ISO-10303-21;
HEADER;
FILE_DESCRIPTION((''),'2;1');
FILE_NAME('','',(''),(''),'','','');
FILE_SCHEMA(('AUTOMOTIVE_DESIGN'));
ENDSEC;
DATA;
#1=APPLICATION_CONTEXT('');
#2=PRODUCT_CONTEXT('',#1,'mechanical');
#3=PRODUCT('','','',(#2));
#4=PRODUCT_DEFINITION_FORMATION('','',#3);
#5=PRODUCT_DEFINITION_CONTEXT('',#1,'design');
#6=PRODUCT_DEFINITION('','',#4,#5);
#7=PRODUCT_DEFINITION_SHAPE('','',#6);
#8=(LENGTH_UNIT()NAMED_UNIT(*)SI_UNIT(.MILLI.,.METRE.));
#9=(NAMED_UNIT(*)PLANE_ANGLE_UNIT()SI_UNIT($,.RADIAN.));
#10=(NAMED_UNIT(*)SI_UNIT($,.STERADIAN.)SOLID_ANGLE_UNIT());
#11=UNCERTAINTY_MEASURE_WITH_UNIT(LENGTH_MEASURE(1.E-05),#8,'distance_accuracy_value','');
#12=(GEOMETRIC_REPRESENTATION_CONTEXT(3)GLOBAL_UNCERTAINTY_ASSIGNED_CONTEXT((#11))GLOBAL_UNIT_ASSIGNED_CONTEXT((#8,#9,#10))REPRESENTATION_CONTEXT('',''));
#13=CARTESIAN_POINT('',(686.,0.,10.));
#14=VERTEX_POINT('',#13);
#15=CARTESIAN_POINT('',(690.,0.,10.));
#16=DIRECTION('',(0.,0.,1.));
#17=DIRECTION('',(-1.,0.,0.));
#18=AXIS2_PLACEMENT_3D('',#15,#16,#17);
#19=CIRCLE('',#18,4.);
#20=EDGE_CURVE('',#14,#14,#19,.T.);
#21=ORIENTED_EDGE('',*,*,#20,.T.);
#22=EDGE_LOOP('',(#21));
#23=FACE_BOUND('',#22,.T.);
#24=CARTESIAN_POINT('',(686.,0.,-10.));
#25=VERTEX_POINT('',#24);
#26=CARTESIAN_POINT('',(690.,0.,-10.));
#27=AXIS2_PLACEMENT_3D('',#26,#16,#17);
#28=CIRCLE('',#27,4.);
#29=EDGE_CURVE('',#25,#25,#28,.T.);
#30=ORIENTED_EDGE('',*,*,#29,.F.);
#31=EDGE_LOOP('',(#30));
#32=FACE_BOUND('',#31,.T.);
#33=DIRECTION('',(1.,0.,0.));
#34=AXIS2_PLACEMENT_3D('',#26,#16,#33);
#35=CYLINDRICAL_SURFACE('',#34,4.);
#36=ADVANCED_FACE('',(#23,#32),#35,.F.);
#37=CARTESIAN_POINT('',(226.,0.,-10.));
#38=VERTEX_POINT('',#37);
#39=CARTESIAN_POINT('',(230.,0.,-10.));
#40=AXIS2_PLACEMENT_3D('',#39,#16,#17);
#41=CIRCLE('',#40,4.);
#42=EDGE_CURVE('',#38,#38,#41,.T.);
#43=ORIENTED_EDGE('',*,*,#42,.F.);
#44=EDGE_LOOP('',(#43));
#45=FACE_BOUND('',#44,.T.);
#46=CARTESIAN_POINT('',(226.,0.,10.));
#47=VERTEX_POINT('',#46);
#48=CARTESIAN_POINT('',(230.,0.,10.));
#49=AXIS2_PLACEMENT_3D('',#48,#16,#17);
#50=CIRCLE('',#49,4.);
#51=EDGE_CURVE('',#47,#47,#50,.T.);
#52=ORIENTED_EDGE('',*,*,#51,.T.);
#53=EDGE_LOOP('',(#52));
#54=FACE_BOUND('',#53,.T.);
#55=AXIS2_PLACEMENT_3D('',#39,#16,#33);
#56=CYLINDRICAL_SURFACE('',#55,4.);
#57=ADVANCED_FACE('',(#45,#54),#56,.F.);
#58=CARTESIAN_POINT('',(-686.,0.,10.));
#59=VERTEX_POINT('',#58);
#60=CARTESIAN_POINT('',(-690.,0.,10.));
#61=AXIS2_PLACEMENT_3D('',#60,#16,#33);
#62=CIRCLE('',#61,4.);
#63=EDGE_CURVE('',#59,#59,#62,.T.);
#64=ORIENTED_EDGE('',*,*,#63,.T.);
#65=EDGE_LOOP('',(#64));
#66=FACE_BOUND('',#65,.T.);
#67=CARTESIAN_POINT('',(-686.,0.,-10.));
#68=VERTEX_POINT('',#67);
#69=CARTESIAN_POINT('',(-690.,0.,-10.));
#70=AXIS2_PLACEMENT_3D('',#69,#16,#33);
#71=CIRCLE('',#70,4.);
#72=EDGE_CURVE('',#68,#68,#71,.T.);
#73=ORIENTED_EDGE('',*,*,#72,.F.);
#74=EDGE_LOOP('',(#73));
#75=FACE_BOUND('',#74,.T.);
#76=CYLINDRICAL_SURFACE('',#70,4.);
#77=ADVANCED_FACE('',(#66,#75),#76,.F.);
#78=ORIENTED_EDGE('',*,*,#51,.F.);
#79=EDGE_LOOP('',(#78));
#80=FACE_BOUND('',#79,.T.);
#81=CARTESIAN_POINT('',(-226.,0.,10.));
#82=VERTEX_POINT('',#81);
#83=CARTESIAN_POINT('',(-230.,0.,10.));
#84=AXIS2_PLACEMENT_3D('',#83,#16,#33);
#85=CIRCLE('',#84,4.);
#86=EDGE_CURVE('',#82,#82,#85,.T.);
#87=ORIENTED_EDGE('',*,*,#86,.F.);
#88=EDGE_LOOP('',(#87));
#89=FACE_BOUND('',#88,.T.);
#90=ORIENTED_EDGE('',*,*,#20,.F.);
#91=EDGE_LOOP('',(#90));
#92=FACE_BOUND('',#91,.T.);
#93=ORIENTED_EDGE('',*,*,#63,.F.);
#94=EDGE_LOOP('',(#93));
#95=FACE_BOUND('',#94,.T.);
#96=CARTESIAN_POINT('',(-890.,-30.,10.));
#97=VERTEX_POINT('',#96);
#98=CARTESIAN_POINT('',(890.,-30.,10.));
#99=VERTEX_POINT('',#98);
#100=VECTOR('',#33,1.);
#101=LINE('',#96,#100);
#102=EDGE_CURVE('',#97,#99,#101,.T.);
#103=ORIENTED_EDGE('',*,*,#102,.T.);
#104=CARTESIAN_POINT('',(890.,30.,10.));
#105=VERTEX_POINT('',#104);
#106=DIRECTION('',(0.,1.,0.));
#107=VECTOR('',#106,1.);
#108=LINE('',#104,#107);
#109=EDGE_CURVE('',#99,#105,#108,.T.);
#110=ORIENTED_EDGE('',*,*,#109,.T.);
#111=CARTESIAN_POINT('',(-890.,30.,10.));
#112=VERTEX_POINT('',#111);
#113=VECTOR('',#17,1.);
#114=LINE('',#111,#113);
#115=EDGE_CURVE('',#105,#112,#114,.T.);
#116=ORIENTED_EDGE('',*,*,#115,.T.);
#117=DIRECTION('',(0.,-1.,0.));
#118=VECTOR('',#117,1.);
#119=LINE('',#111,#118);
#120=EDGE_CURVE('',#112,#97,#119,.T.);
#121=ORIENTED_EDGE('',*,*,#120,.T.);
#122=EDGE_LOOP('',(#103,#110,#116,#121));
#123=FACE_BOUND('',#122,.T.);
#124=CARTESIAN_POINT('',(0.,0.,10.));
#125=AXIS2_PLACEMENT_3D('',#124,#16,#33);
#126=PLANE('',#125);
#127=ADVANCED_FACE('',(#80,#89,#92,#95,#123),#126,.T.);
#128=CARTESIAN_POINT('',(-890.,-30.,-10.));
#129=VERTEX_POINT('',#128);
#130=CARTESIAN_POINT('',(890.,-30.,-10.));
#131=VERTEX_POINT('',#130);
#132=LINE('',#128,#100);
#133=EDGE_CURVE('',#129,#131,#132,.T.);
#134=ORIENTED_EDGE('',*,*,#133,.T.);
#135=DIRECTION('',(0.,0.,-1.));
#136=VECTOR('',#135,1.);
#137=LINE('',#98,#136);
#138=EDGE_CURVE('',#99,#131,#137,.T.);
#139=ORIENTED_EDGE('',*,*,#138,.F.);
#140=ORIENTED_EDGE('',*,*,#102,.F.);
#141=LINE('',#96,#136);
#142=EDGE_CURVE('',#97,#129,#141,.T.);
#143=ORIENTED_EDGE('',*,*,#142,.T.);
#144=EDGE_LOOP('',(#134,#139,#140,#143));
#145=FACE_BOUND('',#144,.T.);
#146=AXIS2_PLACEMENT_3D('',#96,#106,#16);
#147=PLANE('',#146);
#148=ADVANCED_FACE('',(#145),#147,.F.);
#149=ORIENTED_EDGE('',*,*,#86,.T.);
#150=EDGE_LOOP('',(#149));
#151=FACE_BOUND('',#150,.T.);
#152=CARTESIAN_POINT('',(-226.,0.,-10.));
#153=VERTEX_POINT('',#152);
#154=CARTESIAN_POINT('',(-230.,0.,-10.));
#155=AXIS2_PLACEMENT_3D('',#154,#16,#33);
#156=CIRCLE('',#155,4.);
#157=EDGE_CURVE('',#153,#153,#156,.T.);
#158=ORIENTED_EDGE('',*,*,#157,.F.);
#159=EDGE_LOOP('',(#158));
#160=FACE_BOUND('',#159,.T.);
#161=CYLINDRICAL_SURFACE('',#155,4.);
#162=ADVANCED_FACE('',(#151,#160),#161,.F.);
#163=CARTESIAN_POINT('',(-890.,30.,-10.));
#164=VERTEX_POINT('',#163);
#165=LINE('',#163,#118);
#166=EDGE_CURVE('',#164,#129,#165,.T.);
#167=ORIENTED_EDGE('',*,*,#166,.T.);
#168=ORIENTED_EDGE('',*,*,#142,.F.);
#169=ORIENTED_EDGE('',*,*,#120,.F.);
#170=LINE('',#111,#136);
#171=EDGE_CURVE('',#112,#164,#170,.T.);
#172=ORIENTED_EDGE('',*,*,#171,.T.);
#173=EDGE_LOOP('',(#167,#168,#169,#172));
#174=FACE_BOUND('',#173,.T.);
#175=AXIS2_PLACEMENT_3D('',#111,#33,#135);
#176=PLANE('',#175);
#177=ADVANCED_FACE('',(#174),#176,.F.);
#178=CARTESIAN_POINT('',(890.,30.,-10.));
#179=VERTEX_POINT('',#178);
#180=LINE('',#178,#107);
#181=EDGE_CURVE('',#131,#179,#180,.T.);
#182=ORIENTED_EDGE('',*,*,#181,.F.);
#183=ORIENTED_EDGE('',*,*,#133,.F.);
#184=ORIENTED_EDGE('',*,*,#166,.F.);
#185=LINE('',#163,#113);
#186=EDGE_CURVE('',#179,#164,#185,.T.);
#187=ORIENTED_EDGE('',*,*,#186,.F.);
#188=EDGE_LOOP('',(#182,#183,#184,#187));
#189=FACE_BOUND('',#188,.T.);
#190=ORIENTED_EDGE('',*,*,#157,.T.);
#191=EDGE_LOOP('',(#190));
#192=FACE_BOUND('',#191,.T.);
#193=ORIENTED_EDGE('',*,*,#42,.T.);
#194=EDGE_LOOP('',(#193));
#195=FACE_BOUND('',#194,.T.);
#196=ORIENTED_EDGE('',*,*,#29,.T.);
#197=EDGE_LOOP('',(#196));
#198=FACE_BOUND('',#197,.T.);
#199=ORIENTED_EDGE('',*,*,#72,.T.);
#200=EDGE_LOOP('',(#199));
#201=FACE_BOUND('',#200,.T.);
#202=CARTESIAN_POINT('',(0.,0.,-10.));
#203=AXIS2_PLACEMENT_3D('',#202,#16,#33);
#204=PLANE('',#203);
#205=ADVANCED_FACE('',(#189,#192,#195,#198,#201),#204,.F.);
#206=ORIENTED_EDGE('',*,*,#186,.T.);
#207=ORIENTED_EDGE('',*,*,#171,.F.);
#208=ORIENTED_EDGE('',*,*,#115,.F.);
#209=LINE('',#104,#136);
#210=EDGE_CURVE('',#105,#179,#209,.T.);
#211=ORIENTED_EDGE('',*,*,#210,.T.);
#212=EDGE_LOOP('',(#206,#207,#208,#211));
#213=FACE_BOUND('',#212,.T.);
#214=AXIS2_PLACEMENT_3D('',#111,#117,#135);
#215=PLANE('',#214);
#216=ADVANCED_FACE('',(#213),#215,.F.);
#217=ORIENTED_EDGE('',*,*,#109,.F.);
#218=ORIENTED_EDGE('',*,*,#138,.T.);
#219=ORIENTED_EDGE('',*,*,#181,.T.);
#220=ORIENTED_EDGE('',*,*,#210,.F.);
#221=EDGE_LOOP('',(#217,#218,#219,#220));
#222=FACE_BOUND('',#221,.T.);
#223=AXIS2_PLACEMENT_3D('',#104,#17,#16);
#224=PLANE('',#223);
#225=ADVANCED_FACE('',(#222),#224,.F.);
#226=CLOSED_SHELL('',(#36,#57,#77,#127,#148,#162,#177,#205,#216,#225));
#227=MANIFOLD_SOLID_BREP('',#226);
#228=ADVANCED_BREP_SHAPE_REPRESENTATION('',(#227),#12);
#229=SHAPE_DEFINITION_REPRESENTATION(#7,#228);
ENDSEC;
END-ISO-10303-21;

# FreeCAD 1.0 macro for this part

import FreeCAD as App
import Part
import Sketcher

doc = App.newDocument("Part")
body = doc.addObject("PartDesign::Body", "Body")

sketch1 = body.newObject("Sketcher::SketchObject", "Sketch")
sketch1.AttachmentSupport = (doc.getObject("XY_Plane"), [""])
sketch1.MapMode = "FlatFace"
sketch1.addGeometry([
    Part.LineSegment(App.Vector(-890, 30, 0), App.Vector(-890, -30, 0)),
    Part.LineSegment(App.Vector(-890, -30, 0), App.Vector(890, -30, 0)),
    Part.LineSegment(App.Vector(890, -30, 0), App.Vector(890, 30, 0)),
    Part.LineSegment(App.Vector(890, 30, 0), App.Vector(-890, 30, 0)),
], False)
sketch1.addConstraint([
    Sketcher.Constraint("Coincident", 0, 2, 1, 1),
    Sketcher.Constraint("Coincident", 1, 2, 2, 1),
    Sketcher.Constraint("Coincident", 2, 2, 3, 1),
    Sketcher.Constraint("Coincident", 3, 2, 0, 1),
    Sketcher.Constraint("Vertical", 0),
    Sketcher.Constraint("Horizontal", 1),
    Sketcher.Constraint("Vertical", 2),
    Sketcher.Constraint("Horizontal", 3),
    Sketcher.Constraint("Symmetric", 0, 2, 2, 2, -1, 1),
    Sketcher.Constraint("DistanceX", 1, 1, 1, 2, 1780.0),
    Sketcher.Constraint("DistanceY", 0, 2, 0, 1, 60.0),
])
pad1 = body.newObject("PartDesign::Pad", "Pad")
pad1.Profile = sketch1
pad1.Length = 20
pad1.Midplane = True

sketch2 = body.newObject("Sketcher::SketchObject", "Sketch001")
sketch2.AttachmentSupport = (doc.getObject("XY_Plane"), [""])
sketch2.MapMode = "FlatFace"
sketch2.addGeometry([
    Part.Circle(App.Vector(-690, 0, 0), App.Vector(0, 0, 1), 4),
    Part.Circle(App.Vector(-230, 0, 0), App.Vector(0, 0, 1), 4),
    Part.Circle(App.Vector(230, 0, 0), App.Vector(0, 0, 1), 4),
    Part.Circle(App.Vector(690, 0, 0), App.Vector(0, 0, 1), 4),
], False)
sketch2.addConstraint([
    Sketcher.Constraint("Equal", 0, 1),
    Sketcher.Constraint("Equal", 1, 2),
    Sketcher.Constraint("Equal", 2, 3),
    Sketcher.Constraint("Symmetric", 1, 3, 2, 3, -1, 1),
    Sketcher.Constraint("Symmetric", 0, 3, 3, 3, -1, 1),
    Sketcher.Constraint("PointOnObject", 0, 3, -1),
    Sketcher.Constraint("PointOnObject", 1, 3, -1),
    Sketcher.Constraint("Diameter", 0, 8.0),
    Sketcher.Constraint("DistanceX", 0, 3, -1, 1, 690.0),
    Sketcher.Constraint("DistanceX", 1, 3, -1, 1, 230.0),
])
pocket1 = body.newObject("PartDesign::Pocket", "Pocket")
pocket1.Profile = sketch2
pocket1.Type = "ThroughAll"
pocket1.Midplane = True

doc.recompute()
